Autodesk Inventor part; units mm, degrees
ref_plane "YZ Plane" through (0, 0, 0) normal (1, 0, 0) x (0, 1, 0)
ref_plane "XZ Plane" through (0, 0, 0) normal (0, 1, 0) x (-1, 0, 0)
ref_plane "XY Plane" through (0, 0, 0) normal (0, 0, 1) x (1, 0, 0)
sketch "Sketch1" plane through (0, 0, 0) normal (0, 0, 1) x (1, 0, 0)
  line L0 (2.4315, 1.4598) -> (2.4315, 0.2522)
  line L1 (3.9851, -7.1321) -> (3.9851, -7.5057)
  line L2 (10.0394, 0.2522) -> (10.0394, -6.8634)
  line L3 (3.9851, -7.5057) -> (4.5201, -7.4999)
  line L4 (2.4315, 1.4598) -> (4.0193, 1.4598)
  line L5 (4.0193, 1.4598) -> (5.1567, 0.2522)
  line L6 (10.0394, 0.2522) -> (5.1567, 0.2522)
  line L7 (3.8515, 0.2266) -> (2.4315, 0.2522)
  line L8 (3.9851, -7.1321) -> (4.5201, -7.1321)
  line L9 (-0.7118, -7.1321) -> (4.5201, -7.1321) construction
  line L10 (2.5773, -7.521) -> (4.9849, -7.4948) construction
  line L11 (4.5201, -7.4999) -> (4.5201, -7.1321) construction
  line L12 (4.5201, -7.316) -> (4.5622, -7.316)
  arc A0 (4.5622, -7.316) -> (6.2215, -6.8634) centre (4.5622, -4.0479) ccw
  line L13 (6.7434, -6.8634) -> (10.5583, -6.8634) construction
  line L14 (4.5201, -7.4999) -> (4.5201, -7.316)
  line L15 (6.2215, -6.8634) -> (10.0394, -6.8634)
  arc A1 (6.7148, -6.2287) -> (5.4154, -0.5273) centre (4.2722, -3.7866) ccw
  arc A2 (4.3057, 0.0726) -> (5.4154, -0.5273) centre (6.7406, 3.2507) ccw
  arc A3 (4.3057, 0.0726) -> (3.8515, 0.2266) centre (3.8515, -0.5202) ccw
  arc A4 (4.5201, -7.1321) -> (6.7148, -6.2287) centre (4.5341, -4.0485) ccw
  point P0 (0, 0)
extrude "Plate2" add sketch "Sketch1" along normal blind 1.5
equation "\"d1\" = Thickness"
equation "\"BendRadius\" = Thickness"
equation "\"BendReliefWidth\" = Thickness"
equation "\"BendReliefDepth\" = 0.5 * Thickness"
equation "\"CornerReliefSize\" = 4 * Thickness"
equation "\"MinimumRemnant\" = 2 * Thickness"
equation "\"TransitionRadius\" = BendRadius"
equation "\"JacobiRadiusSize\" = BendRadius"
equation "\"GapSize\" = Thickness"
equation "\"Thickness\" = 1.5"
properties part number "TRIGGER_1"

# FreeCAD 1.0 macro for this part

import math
import FreeCAD as App
import Part
import Sketcher
from FreeCAD import Vector
Q = App.Units.Quantity

doc = App.newDocument("Part")
body = doc.addObject("PartDesign::Body", "Body")

# Sketch on XY plane
sketch1 = body.newObject("Sketcher::SketchObject", "Sketch")
sketch1.AttachmentSupport = (doc.getObject("XY_Plane"), [""])
sketch1.MapMode = "FlatFace"
sketch1.addGeometry([
    Part.LineSegment(Vector(4.019, 1.46, 0), Vector(2.432, 1.46, 0)),  # 0
    Part.LineSegment(Vector(2.432, 1.46, 0), Vector(2.432, 0.252, 0)),  # 1
    Part.LineSegment(Vector(2.432, 0.252, 0), Vector(3.852, 0.227, 0)),  # 2
    Part.ArcOfCircle(Part.Circle(Vector(3.852, -0.52, 0), Vector(0, 0, 1), 0.747), math.radians(53), math.radians(90)),  # 3
    Part.ArcOfCircle(Part.Circle(Vector(6.742, 3.252, 0), Vector(0, 0, 1), 4.006), math.radians(-127.46), math.radians(-109.34)),  # 4
    Part.ArcOfCircle(Part.Circle(Vector(4.272, -3.787, 0), Vector(0, 0, 1), 3.454), math.radians(-45), math.radians(71)),  # 5
    Part.ArcOfCircle(Part.Circle(Vector(4.534, -4.048, 0), Vector(0, 0, 1), 3.084), math.radians(-90), math.radians(-45)),  # 6
    Part.LineSegment(Vector(4.52, -7.132, 0), Vector(3.985, -7.132, 0)),  # 7
    Part.LineSegment(Vector(3.985, -7.132, 0), Vector(3.985, -7.506, 0)),  # 8
    Part.LineSegment(Vector(3.985, -7.506, 0), Vector(4.52, -7.5, 0)),  # 9
    Part.LineSegment(Vector(4.52, -7.5, 0), Vector(4.52, -7.316, 0)),  # 10
    Part.LineSegment(Vector(4.52, -7.316, 0), Vector(4.562, -7.316, 0)),  # 11
    Part.ArcOfCircle(Part.Circle(Vector(4.562, -4.048, 0), Vector(0, 0, 1), 3.268), math.radians(-90), math.radians(-59)),  # 12
    Part.LineSegment(Vector(6.221, -6.863, 0), Vector(10.039, -6.863, 0)),  # 13
    Part.LineSegment(Vector(10.039, -6.863, 0), Vector(10.039, 0.252, 0)),  # 14
    Part.LineSegment(Vector(10.039, 0.252, 0), Vector(5.157, 0.252, 0)),  # 15
    Part.LineSegment(Vector(5.157, 0.252, 0), Vector(4.019, 1.46, 0)),  # 16
], False)
sketch1.addConstraint([
    Sketcher.Constraint("Coincident", 0, 2, 1, 1),
    Sketcher.Constraint("Coincident", 1, 2, 2, 1),
    Sketcher.Constraint("Coincident", 2, 2, 3, 2),
    Sketcher.Constraint("Tangent", 3, 1, 4, 1),
    Sketcher.Constraint("Tangent", 4, 2, 5, 2),
    Sketcher.Constraint("Tangent", 5, 1, 6, 2),
    Sketcher.Constraint("Coincident", 6, 1, 7, 1),
    Sketcher.Constraint("Coincident", 7, 2, 8, 1),
    Sketcher.Constraint("Coincident", 8, 2, 9, 1),
    Sketcher.Constraint("Coincident", 9, 2, 10, 1),
    Sketcher.Constraint("Coincident", 10, 2, 11, 1),
    Sketcher.Constraint("Tangent", 11, 2, 12, 1),
    Sketcher.Constraint("Coincident", 12, 2, 13, 1),
    Sketcher.Constraint("Coincident", 13, 2, 14, 1),
    Sketcher.Constraint("Coincident", 14, 2, 15, 1),
    Sketcher.Constraint("Coincident", 15, 2, 16, 1),
    Sketcher.Constraint("Coincident", 16, 2, 0, 1),
    Sketcher.Constraint("Horizontal", 0),
    Sketcher.Constraint("Vertical", 1),
    Sketcher.Constraint("Horizontal", 7),
    Sketcher.Constraint("Vertical", 8),
    Sketcher.Constraint("Vertical", 10),
    Sketcher.Constraint("Horizontal", 11),
    Sketcher.Constraint("Horizontal", 13),
    Sketcher.Constraint("Vertical", 14),
    Sketcher.Constraint("Horizontal", 15),
    Sketcher.Constraint("Horizontal", 1, 2, 14, 2),
    Sketcher.Constraint("Vertical", 3, 3, 2, 2),
    Sketcher.Constraint("Vertical", 6, 1, 9, 2),
    Sketcher.Constraint("Radius", 5, Q("3.454 mm")),
    Sketcher.Constraint("Radius", 12, Q("3.268 mm")),
    Sketcher.Constraint("DistanceY", 14, 2, 4, 3, Q("3 mm")),
    Sketcher.Constraint("DistanceY", 9, 2, -1, 1, Q("7.5 mm")),
    Sketcher.Constraint("Angle", 9, Q("0.6211 deg")),
    Sketcher.Constraint("Radius", 3, Q("0.7468 mm")),
    Sketcher.Constraint("Radius", 4, Q("4.0055 mm")),
    Sketcher.Constraint("Radius", 6, Q("3.0836 mm")),
    Sketcher.Constraint("DistanceY", 12, 3, 1, 2, Q("4.3 mm")),
    Sketcher.Constraint("DistanceY", 4, 2, 3, 1, Q("0.6 mm")),
    Sketcher.Constraint("DistanceX", 7, 2, 7, 1, Q("0.535 mm")),
    Sketcher.Constraint("DistanceX", 11, 1, 11, 2, Q("0.042 mm")),
    Sketcher.Constraint("DistanceX", 13, 1, 13, 2, Q("3.818 mm")),
    Sketcher.Constraint("DistanceY", 10, 1, 10, 2, Q("0.184 mm")),
    Sketcher.Constraint("DistanceX", -1, 1, 6, 1, Q("4.52 mm")),
    Sketcher.Constraint("DistanceX", 5, 3, 12, 3, Q("0.29 mm")),
    Sketcher.Constraint("DistanceX", 0, 2, 3, 3, Q("1.42 mm")),
    Sketcher.Constraint("DistanceY", 3, 3, 0, 2, Q("1.98 mm")),
    Sketcher.Constraint("Distance", 16, Q("1.659 mm")),
    Sketcher.Constraint("DistanceX", 0, 2, 0, 1, Q("1.5878 mm")),
    Sketcher.Constraint("DistanceX", 15, 2, 15, 1, Q("4.8827 mm")),
    Sketcher.Constraint("DistanceY", 1, 2, 1, 1, Q("1.2076 mm")),
    Sketcher.Constraint("DistanceY", 8, 2, 8, 1, Q("0.3736 mm")),
])
pad1 = body.newObject("PartDesign::Pad", "Pad")
pad1.Profile = sketch1
pad1.Length = 1.5

doc.recompute()
